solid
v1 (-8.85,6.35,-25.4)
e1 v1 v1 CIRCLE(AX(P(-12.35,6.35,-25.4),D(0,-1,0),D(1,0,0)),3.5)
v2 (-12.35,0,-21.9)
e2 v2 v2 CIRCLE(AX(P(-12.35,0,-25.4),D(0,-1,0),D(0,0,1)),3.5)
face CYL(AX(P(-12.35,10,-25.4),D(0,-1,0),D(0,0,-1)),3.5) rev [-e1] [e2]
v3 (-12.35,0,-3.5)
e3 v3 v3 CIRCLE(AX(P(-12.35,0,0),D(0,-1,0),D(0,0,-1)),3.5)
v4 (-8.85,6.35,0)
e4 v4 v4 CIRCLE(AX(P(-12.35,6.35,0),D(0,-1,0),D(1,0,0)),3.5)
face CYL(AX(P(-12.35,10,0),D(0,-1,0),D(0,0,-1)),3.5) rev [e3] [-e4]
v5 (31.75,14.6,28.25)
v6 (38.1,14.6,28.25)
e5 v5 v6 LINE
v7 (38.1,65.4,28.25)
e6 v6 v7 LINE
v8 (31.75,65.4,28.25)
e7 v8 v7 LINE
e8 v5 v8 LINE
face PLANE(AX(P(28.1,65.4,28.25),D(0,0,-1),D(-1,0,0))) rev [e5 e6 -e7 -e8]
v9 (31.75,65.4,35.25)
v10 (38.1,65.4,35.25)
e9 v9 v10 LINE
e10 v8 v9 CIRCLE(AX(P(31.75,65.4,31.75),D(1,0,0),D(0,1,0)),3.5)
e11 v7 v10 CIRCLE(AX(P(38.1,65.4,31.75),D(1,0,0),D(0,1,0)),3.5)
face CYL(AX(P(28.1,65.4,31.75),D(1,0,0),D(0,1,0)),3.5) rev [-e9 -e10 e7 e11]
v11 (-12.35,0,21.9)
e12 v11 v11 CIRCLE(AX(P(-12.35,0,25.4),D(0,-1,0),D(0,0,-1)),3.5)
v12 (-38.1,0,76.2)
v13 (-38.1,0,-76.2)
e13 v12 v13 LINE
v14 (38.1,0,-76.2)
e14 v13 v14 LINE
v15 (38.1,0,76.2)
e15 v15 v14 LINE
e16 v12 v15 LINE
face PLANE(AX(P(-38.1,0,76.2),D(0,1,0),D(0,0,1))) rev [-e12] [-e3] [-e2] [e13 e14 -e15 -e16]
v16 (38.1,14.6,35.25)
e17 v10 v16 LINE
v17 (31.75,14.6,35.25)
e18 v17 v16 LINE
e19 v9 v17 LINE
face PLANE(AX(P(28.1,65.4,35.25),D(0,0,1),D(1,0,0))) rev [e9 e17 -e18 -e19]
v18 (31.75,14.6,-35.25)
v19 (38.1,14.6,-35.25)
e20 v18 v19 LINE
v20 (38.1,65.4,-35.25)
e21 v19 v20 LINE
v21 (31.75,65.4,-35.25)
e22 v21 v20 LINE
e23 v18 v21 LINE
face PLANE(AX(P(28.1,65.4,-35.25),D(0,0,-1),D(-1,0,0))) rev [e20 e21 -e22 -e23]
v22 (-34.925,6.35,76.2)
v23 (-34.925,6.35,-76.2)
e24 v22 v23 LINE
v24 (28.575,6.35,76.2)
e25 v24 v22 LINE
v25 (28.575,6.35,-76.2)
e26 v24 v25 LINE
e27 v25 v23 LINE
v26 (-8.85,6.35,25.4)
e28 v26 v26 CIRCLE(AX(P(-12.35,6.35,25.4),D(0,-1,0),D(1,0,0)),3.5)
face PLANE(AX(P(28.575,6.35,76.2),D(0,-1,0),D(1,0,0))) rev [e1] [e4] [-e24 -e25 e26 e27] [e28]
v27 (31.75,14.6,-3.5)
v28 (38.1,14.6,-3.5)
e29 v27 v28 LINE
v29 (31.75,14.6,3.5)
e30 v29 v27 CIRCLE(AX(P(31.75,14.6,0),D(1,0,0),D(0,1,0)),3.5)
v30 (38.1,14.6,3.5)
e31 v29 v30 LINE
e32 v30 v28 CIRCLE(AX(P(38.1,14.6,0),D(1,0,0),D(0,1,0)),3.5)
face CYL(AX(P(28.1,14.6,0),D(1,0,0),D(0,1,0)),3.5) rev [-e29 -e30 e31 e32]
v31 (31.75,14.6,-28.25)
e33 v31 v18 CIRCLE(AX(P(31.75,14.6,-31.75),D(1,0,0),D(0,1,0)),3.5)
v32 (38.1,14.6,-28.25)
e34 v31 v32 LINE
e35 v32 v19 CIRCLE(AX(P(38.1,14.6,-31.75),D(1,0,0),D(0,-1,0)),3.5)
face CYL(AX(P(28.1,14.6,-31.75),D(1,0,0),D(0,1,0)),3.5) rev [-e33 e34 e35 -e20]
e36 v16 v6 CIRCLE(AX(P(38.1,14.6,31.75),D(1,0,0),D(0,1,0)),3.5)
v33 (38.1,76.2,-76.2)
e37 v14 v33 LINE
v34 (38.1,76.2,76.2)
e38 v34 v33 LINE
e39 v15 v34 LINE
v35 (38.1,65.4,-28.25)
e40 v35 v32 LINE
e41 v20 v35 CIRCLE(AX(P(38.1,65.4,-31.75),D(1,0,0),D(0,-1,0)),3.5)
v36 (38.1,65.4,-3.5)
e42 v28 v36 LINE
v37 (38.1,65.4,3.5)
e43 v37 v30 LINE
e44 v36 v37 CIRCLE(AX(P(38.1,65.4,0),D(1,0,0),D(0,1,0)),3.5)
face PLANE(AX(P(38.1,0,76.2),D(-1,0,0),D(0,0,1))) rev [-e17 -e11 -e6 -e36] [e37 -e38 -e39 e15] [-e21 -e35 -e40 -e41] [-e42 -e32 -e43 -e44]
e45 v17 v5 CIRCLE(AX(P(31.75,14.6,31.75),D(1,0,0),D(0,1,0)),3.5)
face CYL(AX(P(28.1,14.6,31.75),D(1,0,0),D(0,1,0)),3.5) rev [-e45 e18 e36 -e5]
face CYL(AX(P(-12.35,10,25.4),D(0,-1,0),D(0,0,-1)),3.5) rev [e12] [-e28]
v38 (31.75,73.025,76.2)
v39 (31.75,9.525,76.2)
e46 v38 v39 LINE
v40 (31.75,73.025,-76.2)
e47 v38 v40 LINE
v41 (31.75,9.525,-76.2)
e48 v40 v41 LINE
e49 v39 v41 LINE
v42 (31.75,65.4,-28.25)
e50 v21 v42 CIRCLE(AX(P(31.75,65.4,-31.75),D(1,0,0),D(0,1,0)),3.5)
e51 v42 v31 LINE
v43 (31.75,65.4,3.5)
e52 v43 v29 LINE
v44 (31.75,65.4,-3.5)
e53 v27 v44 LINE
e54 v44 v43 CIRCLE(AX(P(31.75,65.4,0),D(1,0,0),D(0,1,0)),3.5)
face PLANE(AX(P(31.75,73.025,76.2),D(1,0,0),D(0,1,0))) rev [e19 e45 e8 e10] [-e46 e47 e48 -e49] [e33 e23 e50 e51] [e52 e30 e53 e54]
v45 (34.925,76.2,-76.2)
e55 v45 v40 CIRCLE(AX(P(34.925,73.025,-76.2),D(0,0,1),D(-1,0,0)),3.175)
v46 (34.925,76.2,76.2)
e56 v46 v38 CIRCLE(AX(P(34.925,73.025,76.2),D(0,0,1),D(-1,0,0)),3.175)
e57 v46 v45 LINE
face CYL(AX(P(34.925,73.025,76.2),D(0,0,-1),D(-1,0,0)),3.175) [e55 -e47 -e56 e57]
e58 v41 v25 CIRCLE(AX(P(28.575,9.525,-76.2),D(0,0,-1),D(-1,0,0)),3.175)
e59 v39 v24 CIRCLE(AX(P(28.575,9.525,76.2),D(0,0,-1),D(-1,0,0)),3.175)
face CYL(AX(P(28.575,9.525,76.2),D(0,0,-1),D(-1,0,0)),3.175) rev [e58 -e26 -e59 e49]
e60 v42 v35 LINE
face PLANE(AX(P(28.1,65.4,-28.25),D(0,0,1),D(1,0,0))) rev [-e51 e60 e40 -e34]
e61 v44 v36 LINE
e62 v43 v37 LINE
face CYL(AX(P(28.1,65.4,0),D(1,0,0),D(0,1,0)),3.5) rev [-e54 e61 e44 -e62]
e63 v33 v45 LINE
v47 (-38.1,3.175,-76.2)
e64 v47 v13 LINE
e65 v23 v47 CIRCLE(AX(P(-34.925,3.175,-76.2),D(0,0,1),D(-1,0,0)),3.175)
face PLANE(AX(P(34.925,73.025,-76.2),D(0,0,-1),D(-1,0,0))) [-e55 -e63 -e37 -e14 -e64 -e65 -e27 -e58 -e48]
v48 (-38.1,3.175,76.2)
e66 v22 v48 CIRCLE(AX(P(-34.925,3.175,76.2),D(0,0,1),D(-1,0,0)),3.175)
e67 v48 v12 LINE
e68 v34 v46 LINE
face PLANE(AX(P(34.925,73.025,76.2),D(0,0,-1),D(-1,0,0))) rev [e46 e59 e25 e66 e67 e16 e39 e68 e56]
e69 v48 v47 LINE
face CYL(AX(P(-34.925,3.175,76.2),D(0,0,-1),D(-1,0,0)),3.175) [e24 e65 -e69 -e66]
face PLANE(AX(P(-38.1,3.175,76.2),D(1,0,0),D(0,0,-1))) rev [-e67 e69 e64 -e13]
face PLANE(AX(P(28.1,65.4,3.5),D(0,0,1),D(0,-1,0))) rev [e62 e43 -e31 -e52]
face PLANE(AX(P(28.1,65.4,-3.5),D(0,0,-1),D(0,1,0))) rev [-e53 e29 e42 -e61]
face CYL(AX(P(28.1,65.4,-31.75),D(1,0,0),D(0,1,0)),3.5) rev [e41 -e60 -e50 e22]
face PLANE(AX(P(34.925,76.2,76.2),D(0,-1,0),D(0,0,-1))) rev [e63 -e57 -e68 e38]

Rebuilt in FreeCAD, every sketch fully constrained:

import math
import FreeCAD as App
import Part
import Sketcher

V = App.Vector
Q = App.Units.Quantity

doc = App.newDocument("Part")
body = doc.addObject("PartDesign::Body", "Body")

sketch1 = body.newObject("Sketcher::SketchObject", "Sketch")
sketch1.AttachmentSupport = (doc.getObject("XY_Plane"), [""])
sketch1.MapMode = "FlatFace"
sketch1.addGeometry(Part.LineSegment(V(-38.1, 0, 0), V(38.1, 0, 0)), False)
sketch1.addGeometry(Part.LineSegment(V(38.1, 0, 0), V(38.1, 76.2, 0)), False)
sketch1.addGeometry(Part.LineSegment(V(38.1, 76.2, 0), V(34.9, 76.2, 0)), False)
sketch1.addGeometry(Part.ArcOfCircle(Part.Circle(V(34.9, 73, 0), V(0, 0, 1), 3.2), math.radians(90), math.radians(180)), False)
sketch1.addGeometry(Part.LineSegment(V(31.8, 73, 0), V(31.8, 9.5, 0)), False)
sketch1.addGeometry(Part.ArcOfCircle(Part.Circle(V(28.6, 9.5, 0), V(0, 0, 1), 3.2), math.radians(-90), math.radians(0)), False)
sketch1.addGeometry(Part.LineSegment(V(28.6, 6.3, 0), V(-34.9, 6.3, 0)), False)
sketch1.addGeometry(Part.ArcOfCircle(Part.Circle(V(-34.9, 3.2, 0), V(0, 0, 1), 3.2), math.radians(90), math.radians(180)), False)
sketch1.addGeometry(Part.LineSegment(V(-38.1, 3.2, 0), V(-38.1, 0, 0)), False)
sketch1.addConstraint(Sketcher.Constraint("Coincident", 0, 2, 1, 1))
sketch1.addConstraint(Sketcher.Constraint("Coincident", 1, 2, 2, 1))
sketch1.addConstraint(Sketcher.Constraint("Tangent", 2, 2, 3, 1))
sketch1.addConstraint(Sketcher.Constraint("Tangent", 3, 2, 4, 1))
sketch1.addConstraint(Sketcher.Constraint("Tangent", 4, 2, 5, 2))
sketch1.addConstraint(Sketcher.Constraint("Tangent", 5, 1, 6, 1))
sketch1.addConstraint(Sketcher.Constraint("Tangent", 6, 2, 7, 1))
sketch1.addConstraint(Sketcher.Constraint("Tangent", 7, 2, 8, 1))
sketch1.addConstraint(Sketcher.Constraint("Coincident", 8, 2, 0, 1))
sketch1.addConstraint(Sketcher.Constraint("Horizontal", 0))
sketch1.addConstraint(Sketcher.Constraint("Vertical", 1))
sketch1.addConstraint(Sketcher.Constraint("Horizontal", 2))
sketch1.addConstraint(Sketcher.Constraint("Vertical", 4))
sketch1.addConstraint(Sketcher.Constraint("Horizontal", 6))
sketch1.addConstraint(Sketcher.Constraint("Vertical", 8))
sketch1.addConstraint(Sketcher.Constraint("Equal", 3, 5))
sketch1.addConstraint(Sketcher.Constraint("Equal", 5, 7))
sketch1.addConstraint(Sketcher.Constraint("Symmetric", 0, 2, 8, 2, -1, 1))
sketch1.addConstraint(Sketcher.Constraint("Equal", 0, 1))
sketch1.addConstraint(Sketcher.Constraint("Equal", 6, 4))
sketch1.addConstraint(Sketcher.Constraint("DistanceX", 0, 1, 0, 2, Q("3 in")))
sketch1.addConstraint(Sketcher.Constraint("DistanceX", 6, 2, 6, 1, Q("2.5 in")))
sketch1.addConstraint(Sketcher.Constraint("Radius", 3, Q("0.125 in")))
pad1 = body.newObject("PartDesign::Pad", "Pad")
pad1.Profile = sketch1
pad1.Length = Q("6 in")
pad1.Midplane = True

sketch2 = body.newObject("Sketcher::SketchObject", "Sketch001")
sketch2.AttachmentSupport = (doc.getObject("YZ_Plane"), [""])
sketch2.MapMode = "FlatFace"
sketch2.AttachmentOffset = App.Placement(V(0, 0, 1.5 * 25.4), App.Rotation())
sketch2.addGeometry(Part.LineSegment(V(14.6, 28.2, 0), V(65.4, 28.2, 0)), False)
sketch2.addGeometry(Part.ArcOfCircle(Part.Circle(V(65.4, 31.8, 0), V(0, 0, 1), 3.5), math.radians(-90), math.radians(90)), False)
sketch2.addGeometry(Part.LineSegment(V(65.4, 35.2, 0), V(14.6, 35.2, 0)), False)
sketch2.addGeometry(Part.ArcOfCircle(Part.Circle(V(14.6, 31.8, 0), V(0, 0, 1), 3.5), math.radians(90), math.radians(270)), False)
sketch2.addGeometry(Part.LineSegment(V(65.4, -28.2, 0), V(14.6, -28.2, 0)), False)
sketch2.addGeometry(Part.ArcOfCircle(Part.Circle(V(14.6, -31.8, 0), V(0, 0, 1), 3.5), math.radians(90), math.radians(270)), False)
sketch2.addGeometry(Part.LineSegment(V(14.6, -35.2, 0), V(65.4, -35.2, 0)), False)
sketch2.addGeometry(Part.ArcOfCircle(Part.Circle(V(65.4, -31.8, 0), V(0, 0, 1), 3.5), math.radians(-90), math.radians(90)), False)
sketch2.addGeometry(Part.LineSegment(V(14.6, -3.5, 0), V(65.4, -3.5, 0)), False)
sketch2.addGeometry(Part.ArcOfCircle(Part.Circle(V(65.4, 0, 0), V(0, 0, 1), 3.5), math.radians(-90), math.radians(90)), False)
sketch2.addGeometry(Part.LineSegment(V(65.4, 3.5, 0), V(14.6, 3.5, 0)), False)
sketch2.addGeometry(Part.ArcOfCircle(Part.Circle(V(14.6, 0, 0), V(0, 0, 1), 3.5), math.radians(90), math.radians(270)), False)
sketch2.addConstraint(Sketcher.Constraint("Tangent", 0, 2, 1, 1))
sketch2.addConstraint(Sketcher.Constraint("Tangent", 1, 2, 2, 1))
sketch2.addConstraint(Sketcher.Constraint("Tangent", 2, 2, 3, 1))
sketch2.addConstraint(Sketcher.Constraint("Tangent", 3, 2, 0, 1))
sketch2.addConstraint(Sketcher.Constraint("Tangent", 4, 2, 5, 1))
sketch2.addConstraint(Sketcher.Constraint("Tangent", 5, 2, 6, 1))
sketch2.addConstraint(Sketcher.Constraint("Tangent", 6, 2, 7, 1))
sketch2.addConstraint(Sketcher.Constraint("Tangent", 7, 2, 4, 1))
sketch2.addConstraint(Sketcher.Constraint("Tangent", 8, 2, 9, 1))
sketch2.addConstraint(Sketcher.Constraint("Tangent", 9, 2, 10, 1))
sketch2.addConstraint(Sketcher.Constraint("Tangent", 10, 2, 11, 1))
sketch2.addConstraint(Sketcher.Constraint("Tangent", 11, 2, 8, 1))
sketch2.addConstraint(Sketcher.Constraint("Horizontal", 0))
sketch2.addConstraint(Sketcher.Constraint("Horizontal", 2))
sketch2.addConstraint(Sketcher.Constraint("Horizontal", 4))
sketch2.addConstraint(Sketcher.Constraint("Horizontal", 6))
sketch2.addConstraint(Sketcher.Constraint("Horizontal", 8))
sketch2.addConstraint(Sketcher.Constraint("Horizontal", 10))
sketch2.addConstraint(Sketcher.Constraint("Equal", 3, 5))
sketch2.addConstraint(Sketcher.Constraint("Equal", 7, 9))
sketch2.addConstraint(Sketcher.Constraint("Symmetric", 3, 3, 5, 3, -1))
sketch2.addConstraint(Sketcher.Constraint("PointOnObject", 9, 3, -1))
sketch2.addConstraint(Sketcher.Constraint("Vertical", 1, 3, 7, 3))
sketch2.addConstraint(Sketcher.Constraint("Vertical", 7, 3, 9, 3))
sketch2.addConstraint(Sketcher.Constraint("Vertical", 5, 3, 11, 3))
sketch2.addConstraint(Sketcher.Constraint("DistanceX", 0, 1, 0, 2, Q("2 in")))
sketch2.addConstraint(Sketcher.Constraint("DistanceY", 5, 3, 3, 3, Q("2.5 in")))
sketch2.addConstraint(Sketcher.Constraint("Radius", 1, 3.5))
sketch2.addConstraint(Sketcher.Constraint("DistanceX", -1, 1, 1, 3, 65.4))
pocket1 = body.newObject("PartDesign::Pocket", "Pocket")
pocket1.Profile = sketch2
pocket1.Length = 10

sketch3 = body.newObject("Sketcher::SketchObject", "Sketch002")
sketch3.AttachmentSupport = (doc.getObject("XZ_Plane"), [""])
sketch3.MapMode = "FlatFace"
sketch3.addGeometry(Part.Circle(V(-12.3, 25.4, 0), V(0, 0, 1), 3.5), False)
sketch3.addGeometry(Part.Circle(V(-12.3, -25.4, 0), V(0, 0, 1), 3.5), False)
sketch3.addGeometry(Part.Circle(V(-12.3, 0, 0), V(0, 0, 1), 3.5), False)
sketch3.addConstraint(Sketcher.Constraint("Equal", 0, 1))
sketch3.addConstraint(Sketcher.Constraint("Equal", 1, 2))
sketch3.addConstraint(Sketcher.Constraint("Symmetric", 0, 3, 1, 3, -1))
sketch3.addConstraint(Sketcher.Constraint("PointOnObject", 2, 3, -1))
sketch3.addConstraint(Sketcher.Constraint("Vertical", 1, 3, 2, 3))
sketch3.addConstraint(Sketcher.Constraint("DistanceY", -1, 1, 0, 3, Q("1 in")))
sketch3.addConstraint(Sketcher.Constraint("Diameter", 0, 7.0))
sketch3.addConstraint(Sketcher.Constraint("DistanceX", 0, 3, -1, 1, 12.35))
pocket2 = body.newObject("PartDesign::Pocket", "Pocket001")
pocket2.Profile = sketch3
pocket2.Length = 10

doc.recompute()
